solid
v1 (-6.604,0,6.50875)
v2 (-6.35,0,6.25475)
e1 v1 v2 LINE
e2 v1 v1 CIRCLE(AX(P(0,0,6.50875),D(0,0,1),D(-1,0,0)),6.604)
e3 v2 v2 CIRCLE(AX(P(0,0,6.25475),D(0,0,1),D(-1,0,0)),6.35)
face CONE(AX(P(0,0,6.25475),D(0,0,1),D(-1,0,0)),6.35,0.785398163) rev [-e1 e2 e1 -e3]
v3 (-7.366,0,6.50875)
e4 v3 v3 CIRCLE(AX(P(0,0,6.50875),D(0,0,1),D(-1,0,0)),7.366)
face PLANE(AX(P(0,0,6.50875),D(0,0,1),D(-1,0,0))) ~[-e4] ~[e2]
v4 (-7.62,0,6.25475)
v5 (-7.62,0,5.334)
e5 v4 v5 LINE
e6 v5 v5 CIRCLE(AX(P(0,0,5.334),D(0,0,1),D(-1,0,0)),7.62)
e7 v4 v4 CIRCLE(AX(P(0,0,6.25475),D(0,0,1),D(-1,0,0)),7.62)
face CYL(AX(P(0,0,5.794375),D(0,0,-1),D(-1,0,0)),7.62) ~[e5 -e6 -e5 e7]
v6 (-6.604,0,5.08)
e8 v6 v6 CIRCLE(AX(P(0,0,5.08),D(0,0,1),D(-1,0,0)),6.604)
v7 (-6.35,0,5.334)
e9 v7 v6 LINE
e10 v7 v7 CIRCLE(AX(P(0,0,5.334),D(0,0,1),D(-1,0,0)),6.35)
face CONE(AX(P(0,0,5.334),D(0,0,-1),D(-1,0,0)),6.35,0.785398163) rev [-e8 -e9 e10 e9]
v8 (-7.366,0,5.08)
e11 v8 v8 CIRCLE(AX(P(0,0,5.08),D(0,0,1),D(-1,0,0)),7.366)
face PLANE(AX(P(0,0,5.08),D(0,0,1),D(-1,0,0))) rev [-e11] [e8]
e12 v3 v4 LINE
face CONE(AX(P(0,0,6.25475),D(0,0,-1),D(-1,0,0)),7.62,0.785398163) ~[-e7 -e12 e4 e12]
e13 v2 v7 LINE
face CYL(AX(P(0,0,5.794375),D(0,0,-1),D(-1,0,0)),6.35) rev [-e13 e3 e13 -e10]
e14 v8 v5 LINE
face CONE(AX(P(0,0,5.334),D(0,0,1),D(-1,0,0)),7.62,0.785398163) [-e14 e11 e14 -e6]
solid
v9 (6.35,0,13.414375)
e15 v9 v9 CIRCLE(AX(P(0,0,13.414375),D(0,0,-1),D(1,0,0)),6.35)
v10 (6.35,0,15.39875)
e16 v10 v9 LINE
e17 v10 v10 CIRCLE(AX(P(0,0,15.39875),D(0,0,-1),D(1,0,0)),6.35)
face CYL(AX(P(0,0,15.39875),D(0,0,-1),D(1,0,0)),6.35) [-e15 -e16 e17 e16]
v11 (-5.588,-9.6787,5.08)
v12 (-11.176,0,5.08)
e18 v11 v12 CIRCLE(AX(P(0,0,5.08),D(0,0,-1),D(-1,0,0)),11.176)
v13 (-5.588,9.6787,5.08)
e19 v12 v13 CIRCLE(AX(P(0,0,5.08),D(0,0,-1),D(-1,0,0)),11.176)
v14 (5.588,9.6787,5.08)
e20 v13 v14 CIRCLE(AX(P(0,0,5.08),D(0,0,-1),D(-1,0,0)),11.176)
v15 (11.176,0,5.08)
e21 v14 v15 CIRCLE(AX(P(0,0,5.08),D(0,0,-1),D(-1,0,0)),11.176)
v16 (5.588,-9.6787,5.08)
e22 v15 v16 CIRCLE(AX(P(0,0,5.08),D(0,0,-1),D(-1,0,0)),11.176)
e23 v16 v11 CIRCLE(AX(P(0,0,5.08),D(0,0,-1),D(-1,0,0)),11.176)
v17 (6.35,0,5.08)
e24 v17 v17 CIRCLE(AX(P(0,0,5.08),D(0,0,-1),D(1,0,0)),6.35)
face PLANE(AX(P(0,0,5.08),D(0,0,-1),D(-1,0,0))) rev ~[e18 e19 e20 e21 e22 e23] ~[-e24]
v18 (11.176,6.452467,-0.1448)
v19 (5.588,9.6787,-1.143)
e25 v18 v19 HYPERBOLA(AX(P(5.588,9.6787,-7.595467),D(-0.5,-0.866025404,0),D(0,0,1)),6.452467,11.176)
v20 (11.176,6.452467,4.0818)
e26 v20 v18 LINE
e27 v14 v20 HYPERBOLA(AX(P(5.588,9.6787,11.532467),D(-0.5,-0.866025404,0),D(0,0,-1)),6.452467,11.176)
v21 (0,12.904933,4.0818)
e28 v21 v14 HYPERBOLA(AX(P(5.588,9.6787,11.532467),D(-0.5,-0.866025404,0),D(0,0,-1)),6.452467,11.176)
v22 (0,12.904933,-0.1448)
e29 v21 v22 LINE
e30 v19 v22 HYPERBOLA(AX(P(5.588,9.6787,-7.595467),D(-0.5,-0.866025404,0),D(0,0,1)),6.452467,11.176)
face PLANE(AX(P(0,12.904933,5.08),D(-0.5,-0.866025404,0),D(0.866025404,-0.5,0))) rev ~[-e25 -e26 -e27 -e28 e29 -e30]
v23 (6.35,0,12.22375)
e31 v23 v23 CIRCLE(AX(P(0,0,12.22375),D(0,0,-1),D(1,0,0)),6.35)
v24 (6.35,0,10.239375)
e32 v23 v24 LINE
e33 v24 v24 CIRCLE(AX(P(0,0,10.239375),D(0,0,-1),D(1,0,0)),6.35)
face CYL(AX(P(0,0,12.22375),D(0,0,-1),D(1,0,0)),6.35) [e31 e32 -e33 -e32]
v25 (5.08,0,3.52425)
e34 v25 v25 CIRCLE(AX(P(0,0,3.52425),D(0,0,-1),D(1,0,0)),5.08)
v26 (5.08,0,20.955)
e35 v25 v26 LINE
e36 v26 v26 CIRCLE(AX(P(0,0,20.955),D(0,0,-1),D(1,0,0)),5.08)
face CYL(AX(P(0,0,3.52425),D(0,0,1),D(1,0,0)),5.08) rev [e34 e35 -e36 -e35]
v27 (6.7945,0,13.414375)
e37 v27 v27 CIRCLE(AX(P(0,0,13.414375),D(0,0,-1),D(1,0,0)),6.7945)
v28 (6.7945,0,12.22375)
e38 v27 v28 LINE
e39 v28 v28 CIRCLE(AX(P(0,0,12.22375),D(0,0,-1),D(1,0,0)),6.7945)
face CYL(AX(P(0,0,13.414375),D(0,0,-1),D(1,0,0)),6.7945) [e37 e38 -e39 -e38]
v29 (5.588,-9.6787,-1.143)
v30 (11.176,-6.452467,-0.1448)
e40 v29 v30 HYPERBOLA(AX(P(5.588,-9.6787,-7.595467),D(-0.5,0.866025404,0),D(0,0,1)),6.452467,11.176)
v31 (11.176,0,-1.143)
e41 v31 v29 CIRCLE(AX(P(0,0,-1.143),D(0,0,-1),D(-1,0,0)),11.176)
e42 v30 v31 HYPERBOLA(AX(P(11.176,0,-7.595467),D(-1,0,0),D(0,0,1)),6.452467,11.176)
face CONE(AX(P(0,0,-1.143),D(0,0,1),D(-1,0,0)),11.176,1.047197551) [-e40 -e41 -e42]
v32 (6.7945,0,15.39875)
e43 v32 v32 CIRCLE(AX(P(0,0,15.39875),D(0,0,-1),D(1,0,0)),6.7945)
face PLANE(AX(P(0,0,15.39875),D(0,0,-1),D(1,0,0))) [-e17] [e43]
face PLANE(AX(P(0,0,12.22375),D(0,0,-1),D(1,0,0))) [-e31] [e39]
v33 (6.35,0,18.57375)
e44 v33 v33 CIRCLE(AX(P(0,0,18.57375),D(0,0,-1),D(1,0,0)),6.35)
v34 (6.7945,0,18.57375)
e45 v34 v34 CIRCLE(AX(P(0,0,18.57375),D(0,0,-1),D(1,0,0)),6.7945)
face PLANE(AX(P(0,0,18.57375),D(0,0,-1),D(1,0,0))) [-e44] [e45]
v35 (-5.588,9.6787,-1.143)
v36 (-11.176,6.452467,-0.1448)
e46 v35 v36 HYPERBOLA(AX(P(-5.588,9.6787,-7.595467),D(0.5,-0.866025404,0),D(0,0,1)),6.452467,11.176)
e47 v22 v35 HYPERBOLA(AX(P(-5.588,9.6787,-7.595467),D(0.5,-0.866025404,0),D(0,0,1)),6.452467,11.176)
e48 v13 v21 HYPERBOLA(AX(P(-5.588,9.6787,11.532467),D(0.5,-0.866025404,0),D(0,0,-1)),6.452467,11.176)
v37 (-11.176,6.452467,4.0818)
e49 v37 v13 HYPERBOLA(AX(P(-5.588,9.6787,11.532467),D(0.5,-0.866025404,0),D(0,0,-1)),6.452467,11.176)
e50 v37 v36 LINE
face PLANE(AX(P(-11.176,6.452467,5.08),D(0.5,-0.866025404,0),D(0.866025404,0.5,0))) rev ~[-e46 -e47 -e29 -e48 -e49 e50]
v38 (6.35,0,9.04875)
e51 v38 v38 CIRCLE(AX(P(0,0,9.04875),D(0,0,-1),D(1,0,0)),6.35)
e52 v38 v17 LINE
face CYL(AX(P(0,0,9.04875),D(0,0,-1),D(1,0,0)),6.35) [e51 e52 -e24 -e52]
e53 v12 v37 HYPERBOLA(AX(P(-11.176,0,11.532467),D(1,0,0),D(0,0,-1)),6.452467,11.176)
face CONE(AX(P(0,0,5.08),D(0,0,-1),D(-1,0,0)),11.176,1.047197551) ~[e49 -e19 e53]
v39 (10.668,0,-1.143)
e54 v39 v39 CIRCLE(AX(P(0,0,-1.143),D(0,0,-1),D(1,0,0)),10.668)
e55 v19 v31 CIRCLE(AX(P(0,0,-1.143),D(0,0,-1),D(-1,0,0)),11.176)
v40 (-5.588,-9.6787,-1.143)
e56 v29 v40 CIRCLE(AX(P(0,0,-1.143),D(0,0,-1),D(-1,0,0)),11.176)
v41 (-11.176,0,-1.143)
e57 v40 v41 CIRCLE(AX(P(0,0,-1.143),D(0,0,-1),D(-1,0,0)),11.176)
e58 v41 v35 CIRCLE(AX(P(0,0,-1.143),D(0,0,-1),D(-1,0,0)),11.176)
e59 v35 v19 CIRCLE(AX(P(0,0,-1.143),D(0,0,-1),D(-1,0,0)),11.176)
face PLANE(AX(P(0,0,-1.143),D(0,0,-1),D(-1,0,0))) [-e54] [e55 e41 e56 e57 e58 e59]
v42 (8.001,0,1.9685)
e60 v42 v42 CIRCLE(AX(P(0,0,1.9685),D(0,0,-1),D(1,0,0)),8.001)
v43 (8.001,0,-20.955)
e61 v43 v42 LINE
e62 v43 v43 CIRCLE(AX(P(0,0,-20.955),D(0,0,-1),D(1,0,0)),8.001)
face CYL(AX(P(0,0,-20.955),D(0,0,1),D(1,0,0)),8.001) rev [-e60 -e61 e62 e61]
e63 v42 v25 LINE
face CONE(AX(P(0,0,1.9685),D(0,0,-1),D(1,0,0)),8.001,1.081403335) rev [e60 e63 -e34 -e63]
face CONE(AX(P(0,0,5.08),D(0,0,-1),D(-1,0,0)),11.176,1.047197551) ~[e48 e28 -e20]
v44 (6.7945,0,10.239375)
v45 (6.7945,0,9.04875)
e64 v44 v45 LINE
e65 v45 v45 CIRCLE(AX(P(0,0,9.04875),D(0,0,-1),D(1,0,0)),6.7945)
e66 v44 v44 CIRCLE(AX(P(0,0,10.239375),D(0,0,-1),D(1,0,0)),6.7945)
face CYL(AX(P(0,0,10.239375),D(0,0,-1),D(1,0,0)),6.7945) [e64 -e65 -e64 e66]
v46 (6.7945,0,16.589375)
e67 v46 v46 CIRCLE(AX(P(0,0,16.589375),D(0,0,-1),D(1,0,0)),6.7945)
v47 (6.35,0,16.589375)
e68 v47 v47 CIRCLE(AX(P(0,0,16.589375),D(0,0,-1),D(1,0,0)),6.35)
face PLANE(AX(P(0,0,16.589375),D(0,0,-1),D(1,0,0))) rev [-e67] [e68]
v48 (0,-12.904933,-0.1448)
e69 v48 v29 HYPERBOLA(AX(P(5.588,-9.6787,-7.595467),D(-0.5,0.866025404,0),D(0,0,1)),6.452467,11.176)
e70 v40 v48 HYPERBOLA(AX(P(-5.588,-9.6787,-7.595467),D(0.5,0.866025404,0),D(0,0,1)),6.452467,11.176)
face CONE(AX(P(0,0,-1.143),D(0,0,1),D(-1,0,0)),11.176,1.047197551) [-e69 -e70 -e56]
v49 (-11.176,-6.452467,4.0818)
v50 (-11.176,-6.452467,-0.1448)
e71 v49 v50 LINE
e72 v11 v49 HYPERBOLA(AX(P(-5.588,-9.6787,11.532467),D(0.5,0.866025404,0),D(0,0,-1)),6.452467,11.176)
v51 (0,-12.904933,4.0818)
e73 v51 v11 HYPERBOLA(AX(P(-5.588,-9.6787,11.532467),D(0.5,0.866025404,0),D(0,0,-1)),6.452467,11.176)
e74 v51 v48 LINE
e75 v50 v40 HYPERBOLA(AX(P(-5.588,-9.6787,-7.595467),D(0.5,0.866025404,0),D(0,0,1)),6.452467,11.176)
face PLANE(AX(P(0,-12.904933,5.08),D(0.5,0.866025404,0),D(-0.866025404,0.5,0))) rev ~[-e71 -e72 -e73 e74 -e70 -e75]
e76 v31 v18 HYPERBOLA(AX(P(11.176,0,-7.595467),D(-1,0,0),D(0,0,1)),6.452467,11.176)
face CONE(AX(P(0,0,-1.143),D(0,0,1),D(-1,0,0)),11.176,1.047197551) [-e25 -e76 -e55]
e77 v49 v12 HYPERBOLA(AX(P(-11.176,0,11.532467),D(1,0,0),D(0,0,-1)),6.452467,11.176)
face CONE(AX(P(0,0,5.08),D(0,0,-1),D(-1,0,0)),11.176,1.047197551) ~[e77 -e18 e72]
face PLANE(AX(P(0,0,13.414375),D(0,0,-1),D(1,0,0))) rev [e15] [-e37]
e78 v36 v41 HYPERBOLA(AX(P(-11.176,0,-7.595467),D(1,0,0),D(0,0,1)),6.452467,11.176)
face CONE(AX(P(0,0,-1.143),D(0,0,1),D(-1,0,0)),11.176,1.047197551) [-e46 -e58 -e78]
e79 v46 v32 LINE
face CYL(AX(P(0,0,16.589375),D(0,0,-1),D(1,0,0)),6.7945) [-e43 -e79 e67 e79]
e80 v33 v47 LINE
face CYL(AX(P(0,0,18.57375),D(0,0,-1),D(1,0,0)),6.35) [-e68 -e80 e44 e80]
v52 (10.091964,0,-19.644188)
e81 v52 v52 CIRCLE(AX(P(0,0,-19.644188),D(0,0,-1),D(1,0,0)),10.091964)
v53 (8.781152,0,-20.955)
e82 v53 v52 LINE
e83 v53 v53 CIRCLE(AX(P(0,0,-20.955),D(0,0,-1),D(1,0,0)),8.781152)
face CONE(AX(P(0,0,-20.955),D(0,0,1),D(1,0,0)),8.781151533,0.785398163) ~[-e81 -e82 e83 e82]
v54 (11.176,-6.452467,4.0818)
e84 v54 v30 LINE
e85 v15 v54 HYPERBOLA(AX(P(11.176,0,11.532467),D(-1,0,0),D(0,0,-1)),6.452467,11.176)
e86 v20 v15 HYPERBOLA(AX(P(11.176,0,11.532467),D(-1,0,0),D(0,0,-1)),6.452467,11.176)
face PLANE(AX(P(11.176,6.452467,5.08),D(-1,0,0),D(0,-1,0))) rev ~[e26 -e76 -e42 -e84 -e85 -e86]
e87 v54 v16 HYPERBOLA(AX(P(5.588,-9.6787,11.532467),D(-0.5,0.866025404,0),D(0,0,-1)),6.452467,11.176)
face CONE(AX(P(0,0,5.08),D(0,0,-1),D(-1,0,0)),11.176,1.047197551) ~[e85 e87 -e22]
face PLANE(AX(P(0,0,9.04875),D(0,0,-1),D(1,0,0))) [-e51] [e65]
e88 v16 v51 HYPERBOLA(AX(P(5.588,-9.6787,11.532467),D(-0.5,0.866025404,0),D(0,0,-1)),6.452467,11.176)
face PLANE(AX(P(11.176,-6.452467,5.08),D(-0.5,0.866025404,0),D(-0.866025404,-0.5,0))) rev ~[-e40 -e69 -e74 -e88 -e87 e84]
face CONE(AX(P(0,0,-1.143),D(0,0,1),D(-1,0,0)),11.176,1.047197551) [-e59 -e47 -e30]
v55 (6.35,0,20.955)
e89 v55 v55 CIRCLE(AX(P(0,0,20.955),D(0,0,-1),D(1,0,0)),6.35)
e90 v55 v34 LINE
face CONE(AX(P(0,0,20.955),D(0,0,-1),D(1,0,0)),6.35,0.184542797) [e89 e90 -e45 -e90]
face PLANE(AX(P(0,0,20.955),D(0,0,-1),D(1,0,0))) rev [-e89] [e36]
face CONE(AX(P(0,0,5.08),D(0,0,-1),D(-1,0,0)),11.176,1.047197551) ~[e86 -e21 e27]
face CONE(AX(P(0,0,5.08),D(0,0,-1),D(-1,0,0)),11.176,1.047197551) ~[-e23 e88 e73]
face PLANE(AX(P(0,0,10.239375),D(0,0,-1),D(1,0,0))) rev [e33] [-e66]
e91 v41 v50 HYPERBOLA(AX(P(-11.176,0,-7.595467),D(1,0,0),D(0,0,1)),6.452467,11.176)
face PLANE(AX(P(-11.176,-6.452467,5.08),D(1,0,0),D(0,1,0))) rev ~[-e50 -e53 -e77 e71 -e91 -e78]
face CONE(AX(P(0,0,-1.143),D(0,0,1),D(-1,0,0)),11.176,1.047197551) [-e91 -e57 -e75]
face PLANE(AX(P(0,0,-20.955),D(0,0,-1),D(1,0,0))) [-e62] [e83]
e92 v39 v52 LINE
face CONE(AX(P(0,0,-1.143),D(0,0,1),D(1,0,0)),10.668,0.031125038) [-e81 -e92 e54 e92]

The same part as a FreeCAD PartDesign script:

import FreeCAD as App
import Part
import Sketcher
Q = App.Units.Quantity


def edges_at(feature, points):
    """Names of the edges that pass closest to the given points."""
    edges = feature.Shape.Edges
    near = lambda p: min(range(len(edges)), key=lambda i: edges[i].distToShape(Part.Vertex(*p))[0])
    return sorted({f"Edge{near(p) + 1}" for p in points})


def faces_at(feature, points):
    """Names of the faces that lie closest to the given points."""
    faces = feature.Shape.Faces
    near = lambda p: min(range(len(faces)), key=lambda i: faces[i].distToShape(Part.Vertex(*p))[0])
    return sorted({f"Face{near(p) + 1}" for p in points})


def add_polygon(sketch, points):
    """Adds a closed chain of lines whose ends are joined by coincident constraints."""
    first, n = sketch.GeometryCount, len(points)
    for a, b in zip(points, points[1:] + points[:1]):
        sketch.addGeometry(Part.LineSegment(App.Vector(*a, 0), App.Vector(*b, 0)), False)
    for i in range(n):
        sketch.addConstraint(Sketcher.Constraint("Coincident", first + i, 2, first + (i + 1) % n, 1))

doc = App.newDocument("Part")
body = doc.addObject("PartDesign::Body", "Body")

# Sketch on YZ plane
sketch1 = body.newObject("Sketcher::SketchObject", "Sketch")
sketch1.AttachmentSupport = (doc.getObject("YZ_Plane"), [""])
sketch1.MapMode = "FlatFace"
add_polygon(sketch1, [(6.35, 16.59), (6.35, 18.57), (6.79, 18.57), (6.35, 20.95), (5.08, 20.95), (5.08, 3.52), (8, 1.97), (8, -20.95), (10.05, -20.95), (10.67, -1.14), (11.18, -1.14), (11.18, 5.08), (6.35, 5.08), (6.35, 9.05), (6.79, 9.05), (6.79, 10.24), (6.35, 10.24), (6.35, 12.22), (6.79, 12.22), (6.79, 13.41), (6.35, 13.41), (6.35, 15.4), (6.79, 15.4), (6.79, 16.59)])  # lines 0-23
sketch1.addConstraint([
    Sketcher.Constraint("Vertical", 0),
    Sketcher.Constraint("Horizontal", 1),
    Sketcher.Constraint("Horizontal", 3),
    Sketcher.Constraint("Vertical", 4),
    Sketcher.Constraint("Vertical", 6),
    Sketcher.Constraint("Horizontal", 7),
    Sketcher.Constraint("Horizontal", 9),
    Sketcher.Constraint("Vertical", 10),
    Sketcher.Constraint("Horizontal", 11),
    Sketcher.Constraint("Vertical", 12),
    Sketcher.Constraint("Horizontal", 13),
    Sketcher.Constraint("Vertical", 14),
    Sketcher.Constraint("Horizontal", 15),
    Sketcher.Constraint("Vertical", 16),
    Sketcher.Constraint("Horizontal", 17),
    Sketcher.Constraint("Vertical", 18),
    Sketcher.Constraint("Horizontal", 19),
    Sketcher.Constraint("Vertical", 20),
    Sketcher.Constraint("Horizontal", 21),
    Sketcher.Constraint("Vertical", 22),
    Sketcher.Constraint("Horizontal", 23),
    Sketcher.Constraint("Vertical", 0, 2, 2, 2),
    Sketcher.Constraint("Vertical", 2, 2, 11, 2),
    Sketcher.Constraint("Vertical", 1, 2, 13, 2),
    Sketcher.Constraint("Vertical", 12, 2, 15, 2),
    Sketcher.Constraint("Vertical", 14, 2, 17, 2),
    Sketcher.Constraint("Vertical", 16, 2, 19, 2),
    Sketcher.Constraint("Vertical", 18, 2, 21, 2),
    Sketcher.Constraint("Equal", 0, 16),
    Sketcher.Constraint("Equal", 14, 18),
    Sketcher.Constraint("Equal", 16, 20),
    Sketcher.Constraint("Equal", 18, 22),
    Sketcher.Constraint("DistanceX", 3, 2, 3, 1, Q("0.05 in")),
    Sketcher.Constraint("DistanceX", 9, 1, 9, 2, Q("0.02 in")),
    Sketcher.Constraint("DistanceX", 11, 2, 11, 1, Q("0.19 in")),
    Sketcher.Constraint("DistanceX", -1, 1, 3, 2, Q("0.2 in")),
    Sketcher.Constraint("DistanceY", -1, 1, 10, 2, Q("0.2 in")),
    Sketcher.Constraint("DistanceY", 0, 1, 0, 2, Q("0.078125 in")),
    Sketcher.Constraint("DistanceY", 10, 1, 10, 2, Q("0.245 in")),
    Sketcher.Constraint("DistanceY", 12, 1, 12, 2, Q("0.15625 in")),
    Sketcher.Constraint("DistanceY", 14, 1, 14, 2, Q("0.046875 in")),
    Sketcher.Constraint("DistanceY", 6, 2, 2, 2, Q("1.65 in")),
    Sketcher.Constraint("DistanceY", 7, 2, 8, 2, Q("0.78 in")),
    Sketcher.Constraint("DistanceX", 1, 1, 1, 2, Q("0.0175 in")),
    Sketcher.Constraint("DistanceY", 6, 2, 6, 1, Q("0.9025 in")),
    Sketcher.Constraint("DistanceX", -1, 1, 5, 2, Q("0.315 in")),
    Sketcher.Constraint("DistanceY", 4, 2, 0, 2, Q("0.5925 in")),
    Sketcher.Constraint("Distance", 8, Q("19.8216 mm")),
])
revolution = body.newObject("PartDesign::Revolution", "Revolution")
revolution.Profile = sketch1
revolution.ReferenceAxis = (sketch1, ["V_Axis"])
revolution.Angle = 360

# Sketch on XY plane
sketch2 = body.newObject("Sketcher::SketchObject", "Sketch001")
sketch2.AttachmentSupport = (doc.getObject("XY_Plane"), [""])
sketch2.MapMode = "FlatFace"
sketch2.AttachmentOffset = App.Placement(App.Vector(0, 0, -0.045 * 25.4), App.Rotation())
sketch2.addGeometry(Part.Circle(App.Vector(0, 0, 0), App.Vector(0, 0, 1), 11), False)
sketch2.addConstraint([
    Sketcher.Constraint("Coincident", 0, 3, -1, 1),
    Sketcher.Constraint("Diameter", 0, Q("0.88 in")),
])
pocket1 = body.newObject("PartDesign::Pocket", "Pocket")
pocket1.Profile = sketch2
pocket1.Type = "ThroughAll"

# Sketch on XY plane
sketch3 = body.newObject("Sketcher::SketchObject", "Sketch002")
sketch3.AttachmentSupport = (doc.getObject("XY_Plane"), [""])
sketch3.MapMode = "FlatFace"
sketch3.AttachmentOffset = App.Placement(App.Vector(0, 0, 0.2 * 25.4), App.Rotation())
add_polygon(sketch3, [(-11, 6), (0, 13), (11, 6), (11, -6), (0, -13), (-11, -6)])  # lines 0-5
sketch3.addGeometry(Part.Circle(App.Vector(0, 0, 0), App.Vector(0, 0, 1), 8), False)  # 6
sketch3.addConstraint([
    Sketcher.Constraint("Vertical", 2),
    Sketcher.Constraint("Vertical", 5),
    Sketcher.Constraint("Coincident", 6, 3, -1, 1),
    Sketcher.Constraint("Symmetric", 0, 2, 3, 2, -1, 1),
    Sketcher.Constraint("Symmetric", 1, 2, 4, 2, -1, 1),
    Sketcher.Constraint("PointOnObject", 0, 2, -2),
    Sketcher.Constraint("Parallel", 0, 3),
    Sketcher.Constraint("Horizontal", 2, 2, 4, 2),
    Sketcher.Constraint("Diameter", 6, Q("0.63 in")),
    Sketcher.Constraint("Angle", 0, Q("30 deg")),
    Sketcher.Constraint("DistanceX", -1, 1, 1, 2, Q("0.44 in")),
    Sketcher.Constraint("DistanceY", 2, 2, 0, 2, Q("19.3574 mm")),
])
pad1 = body.newObject("PartDesign::Pad", "Pad")
pad1.Profile = sketch3
pad1.Length = Q("0.245 in")
pad1.Reversed = True
body2 = doc.addObject("PartDesign::Body", "Body001")

# Sketch on YZ plane
sketch4 = body2.newObject("Sketcher::SketchObject", "Sketch003")
sketch4.AttachmentSupport = (doc.getObject("YZ_Plane001"), [""])
sketch4.MapMode = "FlatFace"
add_polygon(sketch4, [(8, -1.1), (8, -21), (10.1, -21), (10.7, -1.1)])  # lines 0-3
sketch4.addConstraint([
    Sketcher.Constraint("Vertical", 0),
    Sketcher.Constraint("Horizontal", 1),
    Sketcher.Constraint("Horizontal", 3),
    Sketcher.Constraint("DistanceY", 0, 2, 0, 1, Q("0.78 in")),
    Sketcher.Constraint("DistanceX", 3, 2, 3, 1, Q("0.105 in")),
    Sketcher.Constraint("DistanceX", -1, 1, 2, 2, Q("0.42 in")),
    Sketcher.Constraint("DistanceY", 0, 2, -1, 1, Q("0.825 in")),
    Sketcher.Constraint("Distance", 2, Q("19.8216 mm")),
])
revolution2 = body2.newObject("PartDesign::Revolution", "Revolution001")
revolution2.Profile = sketch4
revolution2.ReferenceAxis = (sketch4, ["V_Axis"])
revolution2.Angle = 360
doc.recompute()

chamfer = body2.newObject("PartDesign::Chamfer", "Chamfer")
chamfer.Base = (revolution2, edges_at(revolution2, [(-10.051, 0, -20.955)]))
chamfer.ChamferType = "Two distances"
chamfer.Size = Q("0.05 in")
chamfer.Size2 = 1.311447
body3 = doc.addObject("PartDesign::Body", "Body002")

# Sketch on XY plane
sketch5 = body3.newObject("Sketcher::SketchObject", "Sketch004")
sketch5.AttachmentSupport = (doc.getObject("XY_Plane002"), [""])
sketch5.MapMode = "FlatFace"
sketch5.AttachmentOffset = App.Placement(App.Vector(0, 0, -0.045 * 25.4), App.Rotation())
add_polygon(sketch5, [(68, 69), (68, -69), (-68, -69), (-68, 69)])  # lines 0-3
sketch5.addGeometry(Part.Circle(App.Vector(0, 0, 0), App.Vector(0, 0, 1), 11), False)  # 4
sketch5.addConstraint([
    Sketcher.Constraint("Vertical", 0),
    Sketcher.Constraint("Horizontal", 1),
    Sketcher.Constraint("Vertical", 2),
    Sketcher.Constraint("Horizontal", 3),
    Sketcher.Constraint("Coincident", 4, 3, -1, 1),
    Sketcher.Constraint("Symmetric", 0, 2, 2, 2, -1, 1),
    Sketcher.Constraint("Diameter", 4, Q("0.88 in")),
    Sketcher.Constraint("DistanceX", 1, 2, 1, 1, Q("135.36 mm")),
    Sketcher.Constraint("DistanceY", 0, 2, 0, 1, Q("138.818 mm")),
])
pad2 = body3.newObject("PartDesign::Pad", "Pad001")
pad2.Profile = sketch5
pad2.Length = 28.924217
doc.recompute()

datumplane = body3.newObject("PartDesign::Plane", "DatumPlane")
datumplane.AttachmentSupport = (doc.getObject("XY_Plane002"), [""])
datumplane.MapMode = "FlatFace"
datumplane.AttachmentOffset = App.Placement(App.Vector(0, 0, -0.045 * 25.4), App.Rotation())
draft = body3.newObject("PartDesign::Draft", "Draft")
draft.Base = (pad2, faces_at(pad2, [
    (0, -69.409, 13.319),
    (-67.68, 0, 13.319),
    (0, 69.409, 13.319),
    (67.68, 0, 13.319),
    (11.176, 0, 13.319),
]))
draft.NeutralPlane = (datumplane, [""])
draft.Angle = 60
draft.Reversed = False
doc.recompute()

boolean = body.newObject("PartDesign::Boolean", "Boolean")
boolean.Type = "Cut"
boolean.addObjects([body3])
body4 = doc.addObject("PartDesign::Body", "Body003")

# Sketch on XY plane
sketch6 = body4.newObject("Sketcher::SketchObject", "Sketch005")
sketch6.AttachmentSupport = (doc.getObject("XY_Plane003"), [""])
sketch6.MapMode = "FlatFace"
sketch6.AttachmentOffset = App.Placement(App.Vector(0, 0, 0.2 * 25.4), App.Rotation())
add_polygon(sketch6, [(73, 75), (73, -75), (-73, -75), (-73, 75)])  # lines 0-3
sketch6.addGeometry(Part.Circle(App.Vector(0, 0, 0), App.Vector(0, 0, 1), 11), False)  # 4
sketch6.addConstraint([
    Sketcher.Constraint("Vertical", 0),
    Sketcher.Constraint("Horizontal", 1),
    Sketcher.Constraint("Vertical", 2),
    Sketcher.Constraint("Horizontal", 3),
    Sketcher.Constraint("Coincident", 4, 3, -1, 1),
    Sketcher.Constraint("Symmetric", 0, 2, 2, 2, -1, 1),
    Sketcher.Constraint("Diameter", 4, Q("0.88 in")),
    Sketcher.Constraint("DistanceX", 1, 2, 1, 1, Q("146.476 mm")),
    Sketcher.Constraint("DistanceY", 0, 2, 0, 1, Q("149.934 mm")),
])
pad3 = body4.newObject("PartDesign::Pad", "Pad002")
pad3.Profile = sketch6
pad3.Length = 32.132965
pad3.Reversed = True
doc.recompute()

datumplane2 = body4.newObject("PartDesign::Plane", "DatumPlane001")
datumplane2.AttachmentSupport = (doc.getObject("XY_Plane003"), [""])
datumplane2.MapMode = "FlatFace"
datumplane2.AttachmentOffset = App.Placement(App.Vector(0, 0, 0.2 * 25.4), App.Rotation())
draft2 = body4.newObject("PartDesign::Draft", "Draft001")
draft2.Base = (pad3, faces_at(pad3, [
    (0, -74.967, -10.986),
    (-73.238, 0, -10.986),
    (0, 74.967, -10.986),
    (73.238, 0, -10.986),
    (11.176, 0, -10.986),
]))
draft2.NeutralPlane = (datumplane2, [""])
draft2.Angle = 60
draft2.Reversed = True
doc.recompute()

boolean2 = body.newObject("PartDesign::Boolean", "Boolean001")
boolean2.Type = "Cut"
boolean2.addObjects([body4])
doc.recompute()

boolean3 = body.newObject("PartDesign::Boolean", "Boolean002")
boolean3.Type = "Fuse"
boolean3.addObjects([body2])
body5 = doc.addObject("PartDesign::Body", "Body004")

# Sketch on YZ plane
sketch7 = body5.newObject("Sketcher::SketchObject", "Sketch006")
sketch7.AttachmentSupport = (doc.getObject("YZ_Plane004"), [""])
sketch7.MapMode = "FlatFace"
add_polygon(sketch7, [(7.6, 6.5), (6.3, 6.5), (6.3, 5.1), (7.6, 5.1)])  # lines 0-3
sketch7.addConstraint([
    Sketcher.Constraint("Horizontal", 0),
    Sketcher.Constraint("Vertical", 1),
    Sketcher.Constraint("Horizontal", 2),
    Sketcher.Constraint("Vertical", 3),
    Sketcher.Constraint("DistanceX", 0, 2, 0, 1, Q("0.05 in")),
    Sketcher.Constraint("DistanceY", -1, 1, 1, 2, Q("0.2 in")),
    Sketcher.Constraint("DistanceX", -1, 1, 2, 2, Q("0.3 in")),
    Sketcher.Constraint("DistanceY", 1, 2, 1, 1, Q("1.42875 mm")),
])
revolution3 = body5.newObject("PartDesign::Revolution", "Revolution002")
revolution3.Profile = sketch7
revolution3.ReferenceAxis = (sketch7, ["V_Axis"])
revolution3.Angle = 360
doc.recompute()

chamfer2 = body5.newObject("PartDesign::Chamfer", "Chamfer001")
chamfer2.Base = (revolution3, edges_at(revolution3, [
    (7.62, 0, 6.509),
    (7.62, 0, 5.08),
    (6.35, 0, 5.08),
    (6.35, 0, 6.509),
]))
chamfer2.Size = Q("0.01 in")

doc.recompute()
